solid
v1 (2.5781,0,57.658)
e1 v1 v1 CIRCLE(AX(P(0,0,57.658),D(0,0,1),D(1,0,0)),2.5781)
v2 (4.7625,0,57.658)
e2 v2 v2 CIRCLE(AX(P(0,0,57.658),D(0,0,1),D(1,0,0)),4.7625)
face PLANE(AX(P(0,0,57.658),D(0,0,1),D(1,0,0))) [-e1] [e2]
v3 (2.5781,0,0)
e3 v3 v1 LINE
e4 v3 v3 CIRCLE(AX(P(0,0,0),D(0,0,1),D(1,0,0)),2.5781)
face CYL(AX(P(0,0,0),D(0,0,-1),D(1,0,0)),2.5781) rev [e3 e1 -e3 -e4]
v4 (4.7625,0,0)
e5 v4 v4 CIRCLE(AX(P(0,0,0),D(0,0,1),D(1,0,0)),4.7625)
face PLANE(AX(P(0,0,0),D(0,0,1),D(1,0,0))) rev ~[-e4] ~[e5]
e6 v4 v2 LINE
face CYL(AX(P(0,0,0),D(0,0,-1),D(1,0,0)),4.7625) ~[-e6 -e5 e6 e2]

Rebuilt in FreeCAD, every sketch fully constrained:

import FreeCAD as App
import Part
import Sketcher
from FreeCAD import Vector
Q = App.Units.Quantity

doc = App.newDocument("Part")
params = doc.addObject("Spreadsheet::Sheet", "Params")
for row, (alias, value) in enumerate([
    ("sketch1_diameter", "0.375 in"),
    ("sketch1_diameter2", "0.203 in"),
    ("pad1_length", "2.27 in"),
], start=1):
    params.set(f"A{row}", alias)
    params.set(f"B{row}", "=" + value)
    params.setAlias(f"B{row}", alias)

body = doc.addObject("PartDesign::Body", "Body")

# Sketch on XY plane
sketch1 = body.newObject("Sketcher::SketchObject", "Sketch")
sketch1.AttachmentSupport = (doc.getObject("XY_Plane"), [""])
sketch1.MapMode = "FlatFace"
sketch1.addGeometry(Part.Circle(Vector(0, 0, 0), Vector(0, 0, 1), 4.8), False)
sketch1.addGeometry(Part.Circle(Vector(0, 0, 0), Vector(0, 0, 1), 2.6), False)
sketch1.addConstraint(Sketcher.Constraint("Coincident", 0, 3, -1, 1))
sketch1.addConstraint(Sketcher.Constraint("Coincident", 1, 3, -1, 1))
sketch1.addConstraint(Sketcher.Constraint("Diameter", 0, Q("0.375 in")))
sketch1.addConstraint(Sketcher.Constraint("Diameter", 1, Q("0.203 in")))
sketch1.setExpression("Constraints[2]", "Params.sketch1_diameter")
sketch1.setExpression("Constraints[3]", "Params.sketch1_diameter2")
pad1 = body.newObject("PartDesign::Pad", "Pad")
pad1.Profile = sketch1
pad1.setExpression("Length", "Params.pad1_length")

doc.recompute()
